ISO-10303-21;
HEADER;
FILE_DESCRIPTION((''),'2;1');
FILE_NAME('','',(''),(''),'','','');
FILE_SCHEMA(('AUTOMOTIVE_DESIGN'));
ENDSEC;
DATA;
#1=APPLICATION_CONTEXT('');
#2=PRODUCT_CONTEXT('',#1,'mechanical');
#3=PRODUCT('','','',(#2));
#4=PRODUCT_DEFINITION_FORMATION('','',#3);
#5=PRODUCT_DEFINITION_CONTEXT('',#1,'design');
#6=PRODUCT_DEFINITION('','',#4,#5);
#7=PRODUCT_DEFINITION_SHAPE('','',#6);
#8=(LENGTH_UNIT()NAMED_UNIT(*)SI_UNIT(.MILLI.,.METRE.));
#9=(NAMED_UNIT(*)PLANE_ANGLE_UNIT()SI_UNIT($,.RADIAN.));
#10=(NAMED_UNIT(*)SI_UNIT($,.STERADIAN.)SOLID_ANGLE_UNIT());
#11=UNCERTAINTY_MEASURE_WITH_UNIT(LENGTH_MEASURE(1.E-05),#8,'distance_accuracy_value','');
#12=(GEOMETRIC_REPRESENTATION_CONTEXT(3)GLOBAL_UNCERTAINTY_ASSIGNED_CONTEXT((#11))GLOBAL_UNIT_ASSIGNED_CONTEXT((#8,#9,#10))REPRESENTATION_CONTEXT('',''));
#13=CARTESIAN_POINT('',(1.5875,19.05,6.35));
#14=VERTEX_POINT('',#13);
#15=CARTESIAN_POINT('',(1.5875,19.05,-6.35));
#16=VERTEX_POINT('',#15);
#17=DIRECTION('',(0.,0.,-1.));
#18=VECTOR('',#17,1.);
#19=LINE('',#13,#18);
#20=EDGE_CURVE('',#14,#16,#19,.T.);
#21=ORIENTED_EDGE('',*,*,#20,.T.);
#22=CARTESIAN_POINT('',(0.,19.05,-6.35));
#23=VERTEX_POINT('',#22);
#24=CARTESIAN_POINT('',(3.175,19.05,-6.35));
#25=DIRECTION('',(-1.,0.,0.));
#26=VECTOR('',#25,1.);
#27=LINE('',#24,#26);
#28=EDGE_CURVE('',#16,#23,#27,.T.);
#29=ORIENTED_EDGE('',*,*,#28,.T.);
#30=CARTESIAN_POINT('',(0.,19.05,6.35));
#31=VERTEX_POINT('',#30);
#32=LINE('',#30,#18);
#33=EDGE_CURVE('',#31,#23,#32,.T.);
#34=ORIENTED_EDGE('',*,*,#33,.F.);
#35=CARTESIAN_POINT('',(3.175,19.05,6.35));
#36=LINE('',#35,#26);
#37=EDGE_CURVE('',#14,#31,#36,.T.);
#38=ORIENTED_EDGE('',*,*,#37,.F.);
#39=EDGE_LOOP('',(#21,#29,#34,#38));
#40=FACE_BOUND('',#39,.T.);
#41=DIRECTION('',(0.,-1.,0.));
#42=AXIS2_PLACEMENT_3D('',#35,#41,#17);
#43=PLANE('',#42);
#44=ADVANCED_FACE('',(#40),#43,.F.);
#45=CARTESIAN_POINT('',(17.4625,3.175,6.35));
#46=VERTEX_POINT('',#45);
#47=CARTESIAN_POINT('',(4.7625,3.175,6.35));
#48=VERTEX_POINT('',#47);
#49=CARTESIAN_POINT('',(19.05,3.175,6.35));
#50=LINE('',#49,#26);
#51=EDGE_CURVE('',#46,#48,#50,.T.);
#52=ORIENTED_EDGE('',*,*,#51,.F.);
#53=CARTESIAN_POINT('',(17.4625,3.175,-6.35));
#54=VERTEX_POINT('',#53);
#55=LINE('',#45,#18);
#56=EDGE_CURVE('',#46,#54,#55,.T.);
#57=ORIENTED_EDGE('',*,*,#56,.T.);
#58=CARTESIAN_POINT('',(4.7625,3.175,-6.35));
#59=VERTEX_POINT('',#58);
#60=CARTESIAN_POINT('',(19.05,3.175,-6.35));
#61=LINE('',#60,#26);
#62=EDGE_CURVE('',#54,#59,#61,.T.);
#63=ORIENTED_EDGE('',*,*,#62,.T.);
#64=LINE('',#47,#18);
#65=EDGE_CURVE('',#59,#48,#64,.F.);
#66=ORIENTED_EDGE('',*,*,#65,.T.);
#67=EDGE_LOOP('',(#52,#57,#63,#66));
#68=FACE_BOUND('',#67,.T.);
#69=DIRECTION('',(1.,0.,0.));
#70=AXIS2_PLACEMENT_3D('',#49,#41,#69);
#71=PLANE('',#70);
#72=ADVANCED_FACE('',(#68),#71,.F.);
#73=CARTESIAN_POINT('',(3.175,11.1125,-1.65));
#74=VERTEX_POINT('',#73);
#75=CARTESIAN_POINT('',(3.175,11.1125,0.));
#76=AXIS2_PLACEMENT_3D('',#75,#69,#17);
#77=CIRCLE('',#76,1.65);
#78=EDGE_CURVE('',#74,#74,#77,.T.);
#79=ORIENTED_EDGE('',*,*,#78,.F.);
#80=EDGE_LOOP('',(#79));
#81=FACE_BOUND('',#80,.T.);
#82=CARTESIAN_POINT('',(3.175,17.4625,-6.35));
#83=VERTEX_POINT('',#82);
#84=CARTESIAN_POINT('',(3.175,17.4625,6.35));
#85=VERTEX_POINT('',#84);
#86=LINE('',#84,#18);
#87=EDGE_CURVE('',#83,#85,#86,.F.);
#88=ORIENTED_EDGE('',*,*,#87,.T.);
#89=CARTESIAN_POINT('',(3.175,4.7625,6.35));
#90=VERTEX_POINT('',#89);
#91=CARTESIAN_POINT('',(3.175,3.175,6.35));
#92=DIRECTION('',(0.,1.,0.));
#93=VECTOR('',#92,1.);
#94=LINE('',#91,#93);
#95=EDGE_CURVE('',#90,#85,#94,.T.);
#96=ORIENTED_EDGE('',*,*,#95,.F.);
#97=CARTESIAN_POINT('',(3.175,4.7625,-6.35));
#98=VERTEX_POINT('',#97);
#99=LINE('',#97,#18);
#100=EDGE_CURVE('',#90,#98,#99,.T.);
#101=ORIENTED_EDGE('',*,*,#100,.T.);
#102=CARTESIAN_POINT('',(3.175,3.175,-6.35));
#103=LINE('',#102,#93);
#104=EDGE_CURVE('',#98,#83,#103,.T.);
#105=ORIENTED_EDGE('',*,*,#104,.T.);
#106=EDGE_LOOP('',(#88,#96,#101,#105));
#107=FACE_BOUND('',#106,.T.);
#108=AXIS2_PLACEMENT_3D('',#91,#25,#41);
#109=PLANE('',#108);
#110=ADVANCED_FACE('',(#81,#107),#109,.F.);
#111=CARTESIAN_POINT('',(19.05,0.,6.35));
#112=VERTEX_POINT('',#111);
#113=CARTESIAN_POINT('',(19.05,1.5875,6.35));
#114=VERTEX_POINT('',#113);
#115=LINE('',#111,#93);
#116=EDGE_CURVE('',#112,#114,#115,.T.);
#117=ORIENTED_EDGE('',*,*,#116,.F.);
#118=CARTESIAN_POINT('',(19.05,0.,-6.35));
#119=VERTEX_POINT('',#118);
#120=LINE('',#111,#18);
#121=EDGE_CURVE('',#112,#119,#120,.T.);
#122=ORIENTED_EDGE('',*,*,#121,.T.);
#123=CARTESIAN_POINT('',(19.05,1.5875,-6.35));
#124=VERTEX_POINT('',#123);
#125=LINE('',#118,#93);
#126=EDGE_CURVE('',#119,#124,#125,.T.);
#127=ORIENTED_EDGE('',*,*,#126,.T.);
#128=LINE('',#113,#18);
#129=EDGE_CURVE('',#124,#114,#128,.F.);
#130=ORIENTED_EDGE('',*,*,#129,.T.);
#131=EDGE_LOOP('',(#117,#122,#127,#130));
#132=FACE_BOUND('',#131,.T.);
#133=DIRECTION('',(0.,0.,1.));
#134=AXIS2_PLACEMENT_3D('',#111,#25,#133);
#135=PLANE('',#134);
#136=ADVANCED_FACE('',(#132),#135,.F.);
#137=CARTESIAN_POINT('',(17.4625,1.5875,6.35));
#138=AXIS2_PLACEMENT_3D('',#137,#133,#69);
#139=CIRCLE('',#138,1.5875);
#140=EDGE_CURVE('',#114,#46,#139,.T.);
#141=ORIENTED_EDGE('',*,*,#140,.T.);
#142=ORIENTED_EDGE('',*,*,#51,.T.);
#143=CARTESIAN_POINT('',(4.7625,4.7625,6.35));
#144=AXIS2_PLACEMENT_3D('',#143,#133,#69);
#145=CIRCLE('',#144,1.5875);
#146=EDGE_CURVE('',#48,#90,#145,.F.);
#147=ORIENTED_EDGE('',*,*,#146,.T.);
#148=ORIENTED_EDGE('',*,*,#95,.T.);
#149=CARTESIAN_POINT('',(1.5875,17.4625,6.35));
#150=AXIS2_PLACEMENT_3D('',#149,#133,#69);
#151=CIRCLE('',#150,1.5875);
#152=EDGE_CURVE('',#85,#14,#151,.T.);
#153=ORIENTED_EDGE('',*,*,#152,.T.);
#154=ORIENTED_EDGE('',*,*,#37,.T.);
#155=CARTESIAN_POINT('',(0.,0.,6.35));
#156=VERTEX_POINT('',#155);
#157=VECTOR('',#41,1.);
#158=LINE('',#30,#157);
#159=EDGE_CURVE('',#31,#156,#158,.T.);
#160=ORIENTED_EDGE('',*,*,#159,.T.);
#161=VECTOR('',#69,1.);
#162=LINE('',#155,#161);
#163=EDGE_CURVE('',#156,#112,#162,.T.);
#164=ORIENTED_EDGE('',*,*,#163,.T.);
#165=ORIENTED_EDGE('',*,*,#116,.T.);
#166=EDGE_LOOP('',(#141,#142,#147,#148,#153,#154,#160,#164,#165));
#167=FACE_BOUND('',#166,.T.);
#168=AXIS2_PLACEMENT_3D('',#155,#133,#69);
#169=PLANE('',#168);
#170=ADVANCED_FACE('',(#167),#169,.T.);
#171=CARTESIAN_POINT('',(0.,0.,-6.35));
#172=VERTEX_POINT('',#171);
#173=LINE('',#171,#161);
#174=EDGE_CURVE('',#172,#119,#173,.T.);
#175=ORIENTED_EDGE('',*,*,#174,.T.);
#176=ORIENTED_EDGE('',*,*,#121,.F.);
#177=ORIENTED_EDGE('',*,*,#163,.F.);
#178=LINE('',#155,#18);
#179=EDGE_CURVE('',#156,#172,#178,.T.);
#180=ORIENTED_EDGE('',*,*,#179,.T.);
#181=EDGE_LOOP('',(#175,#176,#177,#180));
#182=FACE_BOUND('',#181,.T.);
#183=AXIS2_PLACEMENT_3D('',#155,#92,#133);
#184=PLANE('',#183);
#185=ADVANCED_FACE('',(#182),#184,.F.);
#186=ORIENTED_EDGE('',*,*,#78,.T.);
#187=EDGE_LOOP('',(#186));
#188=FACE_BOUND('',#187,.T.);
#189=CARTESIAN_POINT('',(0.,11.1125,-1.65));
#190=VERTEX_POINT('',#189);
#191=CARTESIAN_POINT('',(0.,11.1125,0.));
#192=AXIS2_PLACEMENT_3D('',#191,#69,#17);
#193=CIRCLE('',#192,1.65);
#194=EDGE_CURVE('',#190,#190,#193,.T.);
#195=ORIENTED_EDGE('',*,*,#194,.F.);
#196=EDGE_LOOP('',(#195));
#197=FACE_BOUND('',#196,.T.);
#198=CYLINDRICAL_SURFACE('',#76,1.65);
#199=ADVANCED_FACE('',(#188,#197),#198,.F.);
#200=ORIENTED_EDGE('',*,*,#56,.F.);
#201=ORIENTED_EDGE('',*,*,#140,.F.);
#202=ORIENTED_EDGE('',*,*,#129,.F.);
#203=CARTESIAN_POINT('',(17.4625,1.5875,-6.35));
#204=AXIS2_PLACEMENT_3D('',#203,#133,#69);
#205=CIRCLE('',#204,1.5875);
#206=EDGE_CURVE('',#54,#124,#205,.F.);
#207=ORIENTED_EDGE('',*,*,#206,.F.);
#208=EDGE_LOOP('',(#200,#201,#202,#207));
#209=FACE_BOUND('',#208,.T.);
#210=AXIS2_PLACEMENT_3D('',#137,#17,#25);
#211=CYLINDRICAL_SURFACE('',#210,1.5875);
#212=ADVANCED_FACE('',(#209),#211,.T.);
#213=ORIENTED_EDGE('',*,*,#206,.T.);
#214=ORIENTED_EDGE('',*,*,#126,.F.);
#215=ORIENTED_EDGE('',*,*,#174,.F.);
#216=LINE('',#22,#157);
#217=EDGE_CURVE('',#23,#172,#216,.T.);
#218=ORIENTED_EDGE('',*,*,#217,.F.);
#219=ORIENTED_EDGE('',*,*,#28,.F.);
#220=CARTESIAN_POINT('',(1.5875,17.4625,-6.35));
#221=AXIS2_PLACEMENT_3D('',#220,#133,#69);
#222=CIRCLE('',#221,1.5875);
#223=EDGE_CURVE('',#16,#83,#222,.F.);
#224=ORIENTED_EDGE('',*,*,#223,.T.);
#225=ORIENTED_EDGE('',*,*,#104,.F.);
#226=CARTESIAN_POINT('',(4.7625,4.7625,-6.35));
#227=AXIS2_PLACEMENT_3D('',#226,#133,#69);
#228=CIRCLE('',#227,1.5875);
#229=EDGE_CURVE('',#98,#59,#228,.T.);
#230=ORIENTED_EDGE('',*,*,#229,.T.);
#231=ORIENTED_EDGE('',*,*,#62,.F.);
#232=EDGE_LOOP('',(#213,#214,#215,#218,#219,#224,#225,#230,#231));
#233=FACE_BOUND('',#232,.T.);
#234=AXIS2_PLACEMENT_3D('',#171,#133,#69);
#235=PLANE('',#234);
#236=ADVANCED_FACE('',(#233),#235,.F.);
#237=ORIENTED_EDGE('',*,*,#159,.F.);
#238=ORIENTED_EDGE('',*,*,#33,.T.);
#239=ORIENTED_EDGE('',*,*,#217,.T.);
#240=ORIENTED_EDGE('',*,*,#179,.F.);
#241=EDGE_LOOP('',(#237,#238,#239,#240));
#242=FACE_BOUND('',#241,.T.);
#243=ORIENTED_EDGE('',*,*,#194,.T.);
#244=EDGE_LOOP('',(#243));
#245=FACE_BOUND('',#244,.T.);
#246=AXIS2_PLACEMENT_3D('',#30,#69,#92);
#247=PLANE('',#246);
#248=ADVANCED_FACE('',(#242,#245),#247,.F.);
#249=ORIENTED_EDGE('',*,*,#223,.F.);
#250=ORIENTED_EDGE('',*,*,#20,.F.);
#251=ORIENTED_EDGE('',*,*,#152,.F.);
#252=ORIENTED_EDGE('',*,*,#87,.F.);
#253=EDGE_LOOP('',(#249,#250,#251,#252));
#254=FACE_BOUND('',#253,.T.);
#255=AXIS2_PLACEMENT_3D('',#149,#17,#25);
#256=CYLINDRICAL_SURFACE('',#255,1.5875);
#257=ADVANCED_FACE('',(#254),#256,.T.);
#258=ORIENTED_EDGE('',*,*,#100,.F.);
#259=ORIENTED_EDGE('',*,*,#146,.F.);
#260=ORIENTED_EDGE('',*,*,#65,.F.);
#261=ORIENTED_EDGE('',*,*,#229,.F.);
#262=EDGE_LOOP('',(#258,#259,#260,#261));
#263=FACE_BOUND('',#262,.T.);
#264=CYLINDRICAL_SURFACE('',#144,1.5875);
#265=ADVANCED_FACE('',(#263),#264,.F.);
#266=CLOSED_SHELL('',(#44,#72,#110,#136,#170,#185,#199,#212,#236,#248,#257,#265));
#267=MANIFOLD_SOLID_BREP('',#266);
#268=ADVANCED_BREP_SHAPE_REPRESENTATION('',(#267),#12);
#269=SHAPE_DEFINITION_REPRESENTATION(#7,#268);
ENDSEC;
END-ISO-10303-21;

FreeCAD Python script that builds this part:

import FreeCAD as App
import Part
import Sketcher
from FreeCAD import Vector
Q = App.Units.Quantity


def edges_at(feature, points):
    """Names of the edges that pass closest to the given points."""
    edges = feature.Shape.Edges
    near = lambda p: min(range(len(edges)), key=lambda i: edges[i].distToShape(Part.Vertex(*p))[0])
    return sorted({f"Edge{near(p) + 1}" for p in points})


def add_polygon(sketch, points):
    """Adds a closed chain of lines whose ends are joined by coincident constraints."""
    first, n = sketch.GeometryCount, len(points)
    for a, b in zip(points, points[1:] + points[:1]):
        sketch.addGeometry(Part.LineSegment(App.Vector(*a, 0), App.Vector(*b, 0)), False)
    for i in range(n):
        sketch.addConstraint(Sketcher.Constraint("Coincident", first + i, 2, first + (i + 1) % n, 1))

doc = App.newDocument("Part")
body = doc.addObject("PartDesign::Body", "Body")

# Sketch on XY plane
sketch1 = body.newObject("Sketcher::SketchObject", "Sketch")
sketch1.AttachmentSupport = (doc.getObject("XY_Plane"), [""])
sketch1.MapMode = "FlatFace"
add_polygon(sketch1, [(3.2, 19.1), (0, 19.1), (0, 0), (19.1, 0), (19.1, 3.2), (3.2, 3.2)])  # lines 0-5
sketch1.addConstraint([
    Sketcher.Constraint("Horizontal", 0),
    Sketcher.Constraint("Vertical", 1),
    Sketcher.Constraint("Horizontal", 2),
    Sketcher.Constraint("Vertical", 3),
    Sketcher.Constraint("Horizontal", 4),
    Sketcher.Constraint("Vertical", 5),
    Sketcher.Constraint("Coincident", 1, 2, -1, 1),
    Sketcher.Constraint("Equal", 2, 1),
    Sketcher.Constraint("Equal", 0, 3),
    Sketcher.Constraint("DistanceX", 2, 1, 2, 2, Q("0.75 in")),
    Sketcher.Constraint("DistanceX", 0, 2, 0, 1, Q("0.125 in")),
])
pad1 = body.newObject("PartDesign::Pad", "Pad")
pad1.Profile = sketch1
pad1.Length = Q("0.5 in")
pad1.Midplane = True
doc.recompute()

fillet = body.newObject("PartDesign::Fillet", "Fillet")
fillet.Base = (pad1, edges_at(pad1, [(3.175, 3.175, 0), (19.05, 3.175, 0), (3.175, 19.05, 0)]))
fillet.Radius = Q("0.0625 in")

# Sketch on YZ plane
sketch2 = body.newObject("Sketcher::SketchObject", "Sketch001")
sketch2.AttachmentSupport = (doc.getObject("YZ_Plane"), [""])
sketch2.MapMode = "FlatFace"
sketch2.AttachmentOffset = App.Placement(Vector(0, 0, 0.125 * 25.4), App.Rotation())
sketch2.addGeometry(Part.Circle(Vector(11.1, 0, 0), Vector(0, 0, 1), 1.6), False)
sketch2.addConstraint([
    Sketcher.Constraint("PointOnObject", 0, 3, -1),
    Sketcher.Constraint("Diameter", 0, Q("3.3 mm")),
    Sketcher.Constraint("DistanceX", -1, 1, 0, 3, Q("0.4375 in")),
])
doc.recompute()
hole = body.newObject("PartDesign::Hole", "Hole")
hole.Profile = sketch2
hole.ThreadType = "None"
hole.Diameter = 3.3
hole.DepthType = "ThroughAll"

doc.recompute()
